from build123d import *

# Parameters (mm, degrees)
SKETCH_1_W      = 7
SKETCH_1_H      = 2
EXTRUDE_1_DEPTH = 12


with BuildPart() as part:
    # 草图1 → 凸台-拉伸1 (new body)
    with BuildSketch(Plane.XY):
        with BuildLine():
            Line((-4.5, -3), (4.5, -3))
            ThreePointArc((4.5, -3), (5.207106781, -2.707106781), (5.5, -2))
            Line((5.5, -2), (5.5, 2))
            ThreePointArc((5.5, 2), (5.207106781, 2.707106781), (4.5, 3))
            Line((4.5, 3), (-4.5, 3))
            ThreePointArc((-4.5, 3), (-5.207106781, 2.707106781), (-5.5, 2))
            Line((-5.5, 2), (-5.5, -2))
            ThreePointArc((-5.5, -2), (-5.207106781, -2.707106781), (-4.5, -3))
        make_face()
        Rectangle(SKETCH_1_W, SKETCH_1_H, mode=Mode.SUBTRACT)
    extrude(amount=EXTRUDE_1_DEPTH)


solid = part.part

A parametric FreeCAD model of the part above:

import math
import FreeCAD as App
import Part
import Sketcher

V = App.Vector
Q = App.Units.Quantity


def add_polygon(sketch, points):
    """Adds a closed chain of lines whose ends are joined by coincident constraints."""
    first, n = sketch.GeometryCount, len(points)
    for a, b in zip(points, points[1:] + points[:1]):
        sketch.addGeometry(Part.LineSegment(App.Vector(*a, 0), App.Vector(*b, 0)), False)
    for i in range(n):
        sketch.addConstraint(Sketcher.Constraint("Coincident", first + i, 2, first + (i + 1) % n, 1))

doc = App.newDocument("Part")
body = doc.addObject("PartDesign::Body", "Body")

sketch1 = body.newObject("Sketcher::SketchObject", "Sketch")
sketch1.AttachmentSupport = (doc.getObject("XY_Plane"), [""])
sketch1.MapMode = "FlatFace"
sketch1.addGeometry(Part.LineSegment(V(-4.5, -3, 0), V(4.5, -3, 0)), False)
sketch1.addGeometry(Part.ArcOfCircle(Part.Circle(V(4.5, -2, 0), V(0, 0, 1), 1), math.radians(-90), math.radians(0)), False)
sketch1.addGeometry(Part.LineSegment(V(5.5, -2, 0), V(5.5, 2, 0)), False)
sketch1.addGeometry(Part.ArcOfCircle(Part.Circle(V(4.5, 2, 0), V(0, 0, 1), 1), math.radians(0), math.radians(90)), False)
sketch1.addGeometry(Part.LineSegment(V(4.5, 3, 0), V(-4.5, 3, 0)), False)
sketch1.addGeometry(Part.ArcOfCircle(Part.Circle(V(-4.5, 2, 0), V(0, 0, 1), 1), math.radians(90), math.radians(180)), False)
sketch1.addGeometry(Part.LineSegment(V(-5.5, 2, 0), V(-5.5, -2, 0)), False)
sketch1.addGeometry(Part.ArcOfCircle(Part.Circle(V(-4.5, -2, 0), V(0, 0, 1), 1), math.radians(-180), math.radians(-90)), False)
add_polygon(sketch1, [(3.5, -1), (-3.5, -1), (-3.5, 1), (3.5, 1)])
sketch1.addConstraint(Sketcher.Constraint("Tangent", 0, 2, 1, 1))
sketch1.addConstraint(Sketcher.Constraint("Tangent", 1, 2, 2, 1))
sketch1.addConstraint(Sketcher.Constraint("Tangent", 2, 2, 3, 1))
sketch1.addConstraint(Sketcher.Constraint("Tangent", 3, 2, 4, 1))
sketch1.addConstraint(Sketcher.Constraint("Tangent", 4, 2, 5, 1))
sketch1.addConstraint(Sketcher.Constraint("Tangent", 5, 2, 6, 1))
sketch1.addConstraint(Sketcher.Constraint("Tangent", 6, 2, 7, 1))
sketch1.addConstraint(Sketcher.Constraint("Tangent", 7, 2, 0, 1))
sketch1.addConstraint(Sketcher.Constraint("Horizontal", 0))
sketch1.addConstraint(Sketcher.Constraint("Vertical", 2))
sketch1.addConstraint(Sketcher.Constraint("Horizontal", 4))
sketch1.addConstraint(Sketcher.Constraint("Vertical", 6))
sketch1.addConstraint(Sketcher.Constraint("Horizontal", 8))
sketch1.addConstraint(Sketcher.Constraint("Vertical", 9))
sketch1.addConstraint(Sketcher.Constraint("Horizontal", 10))
sketch1.addConstraint(Sketcher.Constraint("Vertical", 11))
sketch1.addConstraint(Sketcher.Constraint("Equal", 1, 3))
sketch1.addConstraint(Sketcher.Constraint("Equal", 3, 5))
sketch1.addConstraint(Sketcher.Constraint("Equal", 5, 7))
sketch1.addConstraint(Sketcher.Constraint("Symmetric", 1, 3, 5, 3, -1, 1))
sketch1.addConstraint(Sketcher.Constraint("Symmetric", 8, 2, 10, 2, -1, 1))
sketch1.addConstraint(Sketcher.Constraint("Radius", 1, Q("1 mm")))
sketch1.addConstraint(Sketcher.Constraint("DistanceX", 0, 1, 0, 2, Q("9 mm")))
sketch1.addConstraint(Sketcher.Constraint("DistanceX", 8, 2, 8, 1, Q("7 mm")))
sketch1.addConstraint(Sketcher.Constraint("DistanceY", 2, 1, 2, 2, Q("4 mm")))
sketch1.addConstraint(Sketcher.Constraint("DistanceY", 9, 1, 9, 2, Q("2 mm")))
pad1 = body.newObject("PartDesign::Pad", "Pad")
pad1.Profile = sketch1
pad1.Length = 12

doc.recompute()
